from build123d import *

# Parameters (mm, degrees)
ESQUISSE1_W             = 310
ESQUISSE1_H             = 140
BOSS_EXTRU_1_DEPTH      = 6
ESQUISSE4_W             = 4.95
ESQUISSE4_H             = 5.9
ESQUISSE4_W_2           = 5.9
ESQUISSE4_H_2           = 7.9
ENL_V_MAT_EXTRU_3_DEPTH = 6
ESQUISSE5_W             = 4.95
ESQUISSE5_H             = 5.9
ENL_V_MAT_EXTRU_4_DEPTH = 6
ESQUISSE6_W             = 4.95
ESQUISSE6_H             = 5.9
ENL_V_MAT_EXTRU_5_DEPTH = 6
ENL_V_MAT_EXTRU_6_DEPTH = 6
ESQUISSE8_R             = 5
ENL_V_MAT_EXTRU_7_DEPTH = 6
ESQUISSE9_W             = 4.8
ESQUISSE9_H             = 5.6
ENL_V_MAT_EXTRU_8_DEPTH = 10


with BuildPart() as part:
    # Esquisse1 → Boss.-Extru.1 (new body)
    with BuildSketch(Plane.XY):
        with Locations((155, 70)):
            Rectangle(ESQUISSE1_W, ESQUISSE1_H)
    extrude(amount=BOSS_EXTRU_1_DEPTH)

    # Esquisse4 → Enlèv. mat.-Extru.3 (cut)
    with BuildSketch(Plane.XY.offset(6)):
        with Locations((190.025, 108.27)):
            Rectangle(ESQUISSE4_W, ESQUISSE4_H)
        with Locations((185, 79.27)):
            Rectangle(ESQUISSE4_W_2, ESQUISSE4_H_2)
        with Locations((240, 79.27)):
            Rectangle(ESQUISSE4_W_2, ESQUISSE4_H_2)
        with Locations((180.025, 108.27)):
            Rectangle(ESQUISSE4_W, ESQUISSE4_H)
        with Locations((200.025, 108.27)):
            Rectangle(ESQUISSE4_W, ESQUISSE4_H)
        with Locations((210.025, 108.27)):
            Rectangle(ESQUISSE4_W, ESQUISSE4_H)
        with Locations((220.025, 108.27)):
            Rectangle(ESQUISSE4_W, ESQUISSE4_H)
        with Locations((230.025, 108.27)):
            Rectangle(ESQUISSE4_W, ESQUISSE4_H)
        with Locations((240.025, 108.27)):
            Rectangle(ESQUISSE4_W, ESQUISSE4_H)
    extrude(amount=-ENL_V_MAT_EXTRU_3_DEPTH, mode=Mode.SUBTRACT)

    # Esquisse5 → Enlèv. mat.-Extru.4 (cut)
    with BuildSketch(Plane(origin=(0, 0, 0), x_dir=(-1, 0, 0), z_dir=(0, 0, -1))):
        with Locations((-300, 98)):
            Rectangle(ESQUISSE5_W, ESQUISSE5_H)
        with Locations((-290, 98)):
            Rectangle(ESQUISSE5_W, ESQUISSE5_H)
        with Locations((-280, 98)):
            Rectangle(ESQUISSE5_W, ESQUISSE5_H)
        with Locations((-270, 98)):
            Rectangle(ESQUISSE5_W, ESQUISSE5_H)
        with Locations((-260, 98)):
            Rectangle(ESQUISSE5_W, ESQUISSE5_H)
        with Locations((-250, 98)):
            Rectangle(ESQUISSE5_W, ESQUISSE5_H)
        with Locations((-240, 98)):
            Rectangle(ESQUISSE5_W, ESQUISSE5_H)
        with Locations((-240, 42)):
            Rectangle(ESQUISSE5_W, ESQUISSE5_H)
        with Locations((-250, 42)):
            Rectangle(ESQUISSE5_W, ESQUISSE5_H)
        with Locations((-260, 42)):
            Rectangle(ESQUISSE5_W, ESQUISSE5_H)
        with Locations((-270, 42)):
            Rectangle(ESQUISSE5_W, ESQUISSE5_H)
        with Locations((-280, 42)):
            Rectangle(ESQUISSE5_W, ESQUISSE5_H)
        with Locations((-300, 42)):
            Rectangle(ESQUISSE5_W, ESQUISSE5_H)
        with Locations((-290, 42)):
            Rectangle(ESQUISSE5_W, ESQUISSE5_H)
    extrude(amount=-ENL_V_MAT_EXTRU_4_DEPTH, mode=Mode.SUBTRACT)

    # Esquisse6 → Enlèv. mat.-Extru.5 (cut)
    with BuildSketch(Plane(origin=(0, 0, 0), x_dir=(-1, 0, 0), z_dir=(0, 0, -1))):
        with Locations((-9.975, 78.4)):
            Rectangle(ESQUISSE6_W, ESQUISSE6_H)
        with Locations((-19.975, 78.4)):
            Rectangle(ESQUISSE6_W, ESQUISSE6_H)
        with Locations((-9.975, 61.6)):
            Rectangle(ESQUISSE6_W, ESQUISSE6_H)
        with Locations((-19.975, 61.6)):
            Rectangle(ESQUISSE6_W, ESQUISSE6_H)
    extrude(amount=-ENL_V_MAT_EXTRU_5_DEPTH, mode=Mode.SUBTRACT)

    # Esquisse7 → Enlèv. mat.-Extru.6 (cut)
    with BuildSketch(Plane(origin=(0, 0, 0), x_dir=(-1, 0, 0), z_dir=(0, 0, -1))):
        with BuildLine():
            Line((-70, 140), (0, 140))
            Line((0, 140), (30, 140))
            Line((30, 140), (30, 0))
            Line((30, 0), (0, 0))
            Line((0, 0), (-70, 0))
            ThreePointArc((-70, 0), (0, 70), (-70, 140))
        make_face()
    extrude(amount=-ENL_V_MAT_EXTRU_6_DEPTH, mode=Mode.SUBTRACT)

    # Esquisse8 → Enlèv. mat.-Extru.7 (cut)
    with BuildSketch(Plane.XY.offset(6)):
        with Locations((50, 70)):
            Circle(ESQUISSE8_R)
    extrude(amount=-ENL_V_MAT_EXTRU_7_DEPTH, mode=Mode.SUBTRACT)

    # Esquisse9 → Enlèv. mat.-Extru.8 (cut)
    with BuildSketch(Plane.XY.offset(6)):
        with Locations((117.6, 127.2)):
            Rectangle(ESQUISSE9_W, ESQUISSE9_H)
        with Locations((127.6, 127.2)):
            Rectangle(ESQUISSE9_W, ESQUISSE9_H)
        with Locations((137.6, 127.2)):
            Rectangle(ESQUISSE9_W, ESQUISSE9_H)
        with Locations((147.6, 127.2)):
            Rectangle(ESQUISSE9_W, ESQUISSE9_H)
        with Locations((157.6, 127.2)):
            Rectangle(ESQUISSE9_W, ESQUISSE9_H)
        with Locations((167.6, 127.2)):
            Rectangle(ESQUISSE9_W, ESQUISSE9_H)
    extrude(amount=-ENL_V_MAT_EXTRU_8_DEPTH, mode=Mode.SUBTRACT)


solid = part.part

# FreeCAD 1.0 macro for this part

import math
import FreeCAD as App
import Part
import Sketcher
Q = App.Units.Quantity


def add_polygon(sketch, points):
    """Adds a closed chain of lines whose ends are joined by coincident constraints."""
    first, n = sketch.GeometryCount, len(points)
    for a, b in zip(points, points[1:] + points[:1]):
        sketch.addGeometry(Part.LineSegment(App.Vector(*a, 0), App.Vector(*b, 0)), False)
    for i in range(n):
        sketch.addConstraint(Sketcher.Constraint("Coincident", first + i, 2, first + (i + 1) % n, 1))

doc = App.newDocument("Part")
body = doc.addObject("PartDesign::Body", "Body")

sketch1 = body.newObject("Sketcher::SketchObject", "Sketch")
sketch1.AttachmentSupport = (doc.getObject("XY_Plane"), [""])
sketch1.MapMode = "FlatFace"
add_polygon(sketch1, [(0, 140), (0, 0), (310, 0), (310, 140)])
sketch1.addConstraint(Sketcher.Constraint("Vertical", 0))
sketch1.addConstraint(Sketcher.Constraint("Horizontal", 1))
sketch1.addConstraint(Sketcher.Constraint("Vertical", 2))
sketch1.addConstraint(Sketcher.Constraint("Horizontal", 3))
sketch1.addConstraint(Sketcher.Constraint("Coincident", 0, 2, -1, 1))
sketch1.addConstraint(Sketcher.Constraint("DistanceX", 1, 1, 1, 2, Q("310 mm")))
sketch1.addConstraint(Sketcher.Constraint("DistanceY", 0, 2, 0, 1, Q("140 mm")))
pad1 = body.newObject("PartDesign::Pad", "Pad")
pad1.Profile = sketch1
pad1.Length = 6

sketch2 = body.newObject("Sketcher::SketchObject", "Sketch001")
sketch2.AttachmentSupport = (doc.getObject("XY_Plane"), [""])
sketch2.MapMode = "FlatFace"
sketch2.AttachmentOffset = App.Placement(App.Vector(0, 0, 6), App.Rotation())
add_polygon(sketch2, [(187.6, 111.2), (187.6, 105.3), (192.5, 105.3), (192.5, 111.2)])
add_polygon(sketch2, [(182.1, 83.2), (182.1, 75.3), (187.9, 75.3), (187.9, 83.2)])
add_polygon(sketch2, [(237.1, 83.2), (237.1, 75.3), (242.9, 75.3), (242.9, 83.2)])
add_polygon(sketch2, [(177.6, 111.2), (177.6, 105.3), (182.5, 105.3), (182.5, 111.2)])
add_polygon(sketch2, [(197.6, 111.2), (197.6, 105.3), (202.5, 105.3), (202.5, 111.2)])
add_polygon(sketch2, [(207.6, 111.2), (207.6, 105.3), (212.5, 105.3), (212.5, 111.2)])
add_polygon(sketch2, [(217.6, 111.2), (217.6, 105.3), (222.5, 105.3), (222.5, 111.2)])
add_polygon(sketch2, [(227.6, 111.2), (227.6, 105.3), (232.5, 105.3), (232.5, 111.2)])
add_polygon(sketch2, [(237.6, 111.2), (237.6, 105.3), (242.5, 105.3), (242.5, 111.2)])
sketch2.addConstraint(Sketcher.Constraint("Vertical", 0))
sketch2.addConstraint(Sketcher.Constraint("Horizontal", 1))
sketch2.addConstraint(Sketcher.Constraint("Vertical", 2))
sketch2.addConstraint(Sketcher.Constraint("Horizontal", 3))
sketch2.addConstraint(Sketcher.Constraint("Vertical", 4))
sketch2.addConstraint(Sketcher.Constraint("Horizontal", 5))
sketch2.addConstraint(Sketcher.Constraint("Vertical", 6))
sketch2.addConstraint(Sketcher.Constraint("Horizontal", 7))
sketch2.addConstraint(Sketcher.Constraint("Vertical", 8))
sketch2.addConstraint(Sketcher.Constraint("Horizontal", 9))
sketch2.addConstraint(Sketcher.Constraint("Vertical", 10))
sketch2.addConstraint(Sketcher.Constraint("Horizontal", 11))
sketch2.addConstraint(Sketcher.Constraint("Vertical", 12))
sketch2.addConstraint(Sketcher.Constraint("Horizontal", 13))
sketch2.addConstraint(Sketcher.Constraint("Vertical", 14))
sketch2.addConstraint(Sketcher.Constraint("Horizontal", 15))
sketch2.addConstraint(Sketcher.Constraint("Vertical", 16))
sketch2.addConstraint(Sketcher.Constraint("Horizontal", 17))
sketch2.addConstraint(Sketcher.Constraint("Vertical", 18))
sketch2.addConstraint(Sketcher.Constraint("Horizontal", 19))
sketch2.addConstraint(Sketcher.Constraint("Vertical", 20))
sketch2.addConstraint(Sketcher.Constraint("Horizontal", 21))
sketch2.addConstraint(Sketcher.Constraint("Vertical", 22))
sketch2.addConstraint(Sketcher.Constraint("Horizontal", 23))
sketch2.addConstraint(Sketcher.Constraint("Vertical", 24))
sketch2.addConstraint(Sketcher.Constraint("Horizontal", 25))
sketch2.addConstraint(Sketcher.Constraint("Vertical", 26))
sketch2.addConstraint(Sketcher.Constraint("Horizontal", 27))
sketch2.addConstraint(Sketcher.Constraint("Vertical", 28))
sketch2.addConstraint(Sketcher.Constraint("Horizontal", 29))
sketch2.addConstraint(Sketcher.Constraint("Vertical", 30))
sketch2.addConstraint(Sketcher.Constraint("Horizontal", 31))
sketch2.addConstraint(Sketcher.Constraint("Vertical", 32))
sketch2.addConstraint(Sketcher.Constraint("Horizontal", 33))
sketch2.addConstraint(Sketcher.Constraint("Vertical", 34))
sketch2.addConstraint(Sketcher.Constraint("Horizontal", 35))
sketch2.addConstraint(Sketcher.Constraint("Horizontal", 5, 2, 8, 2))
sketch2.addConstraint(Sketcher.Constraint("Horizontal", 7, 2, 10, 2))
sketch2.addConstraint(Sketcher.Constraint("Horizontal", 1, 2, 12, 2))
sketch2.addConstraint(Sketcher.Constraint("Horizontal", 3, 2, 14, 2))
sketch2.addConstraint(Sketcher.Constraint("Horizontal", 13, 2, 16, 2))
sketch2.addConstraint(Sketcher.Constraint("Horizontal", 15, 2, 18, 2))
sketch2.addConstraint(Sketcher.Constraint("Horizontal", 17, 2, 20, 2))
sketch2.addConstraint(Sketcher.Constraint("Horizontal", 19, 2, 22, 2))
sketch2.addConstraint(Sketcher.Constraint("Horizontal", 21, 2, 24, 2))
sketch2.addConstraint(Sketcher.Constraint("Horizontal", 23, 2, 26, 2))
sketch2.addConstraint(Sketcher.Constraint("Horizontal", 25, 2, 28, 2))
sketch2.addConstraint(Sketcher.Constraint("Horizontal", 27, 2, 30, 2))
sketch2.addConstraint(Sketcher.Constraint("Horizontal", 29, 2, 32, 2))
sketch2.addConstraint(Sketcher.Constraint("Horizontal", 31, 2, 34, 2))
sketch2.addConstraint(Sketcher.Constraint("Equal", 7, 9))
sketch2.addConstraint(Sketcher.Constraint("Equal", 3, 13))
sketch2.addConstraint(Sketcher.Constraint("Equal", 15, 17))
sketch2.addConstraint(Sketcher.Constraint("Equal", 19, 21))
sketch2.addConstraint(Sketcher.Constraint("Equal", 23, 25))
sketch2.addConstraint(Sketcher.Constraint("Equal", 27, 29))
sketch2.addConstraint(Sketcher.Constraint("Equal", 31, 33))
sketch2.addConstraint(Sketcher.Constraint("Equal", 11, 0))
sketch2.addConstraint(Sketcher.Constraint("DistanceX", 5, 1, 5, 2, Q("5.9 mm")))
sketch2.addConstraint(Sketcher.Constraint("DistanceY", 4, 2, 4, 1, Q("7.9 mm")))
sketch2.addConstraint(Sketcher.Constraint("DistanceY", 4, 2, 0, 2, Q("30 mm")))
sketch2.addConstraint(Sketcher.Constraint("DistanceX", 4, 2, 8, 2, Q("55 mm")))
sketch2.addConstraint(Sketcher.Constraint("DistanceX", 12, 2, 0, 2, Q("10 mm")))
sketch2.addConstraint(Sketcher.Constraint("DistanceX", 0, 2, 16, 2, Q("10 mm")))
sketch2.addConstraint(Sketcher.Constraint("DistanceX", 16, 2, 20, 2, Q("10 mm")))
sketch2.addConstraint(Sketcher.Constraint("DistanceX", 20, 2, 24, 2, Q("10 mm")))
sketch2.addConstraint(Sketcher.Constraint("DistanceX", 24, 2, 28, 2, Q("10 mm")))
sketch2.addConstraint(Sketcher.Constraint("DistanceX", 28, 2, 32, 2, Q("10 mm")))
sketch2.addConstraint(Sketcher.Constraint("DistanceX", 1, 1, 1, 2, Q("4.95 mm")))
sketch2.addConstraint(Sketcher.Constraint("DistanceX", -1, 1, 1, 2, Q("192.5 mm")))
sketch2.addConstraint(Sketcher.Constraint("DistanceX", 4, 2, 0, 2, Q("5.5 mm")))
sketch2.addConstraint(Sketcher.Constraint("DistanceY", -1, 1, 0, 2, Q("105.32 mm")))
pocket1 = body.newObject("PartDesign::Pocket", "Pocket")
pocket1.Profile = sketch2
pocket1.Length = 6

sketch3 = body.newObject("Sketcher::SketchObject", "Sketch002")
sketch3.AttachmentSupport = (doc.getObject("XY_Plane"), [""])
sketch3.MapMode = "FlatFace"
add_polygon(sketch3, [(302.5, 101), (302.5, 95), (297.5, 95), (297.5, 101)])
add_polygon(sketch3, [(292.5, 101), (292.5, 95), (287.5, 95), (287.5, 101)])
add_polygon(sketch3, [(282.5, 101), (282.5, 95), (277.5, 95), (277.5, 101)])
add_polygon(sketch3, [(272.5, 101), (272.5, 95), (267.5, 95), (267.5, 101)])
add_polygon(sketch3, [(262.5, 101), (262.5, 95), (257.5, 95), (257.5, 101)])
add_polygon(sketch3, [(252.5, 101), (252.5, 95), (247.5, 95), (247.5, 101)])
add_polygon(sketch3, [(242.5, 101), (242.5, 95), (237.5, 95), (237.5, 101)])
add_polygon(sketch3, [(242.5, 45), (242.5, 39), (237.5, 39), (237.5, 45)])
add_polygon(sketch3, [(252.5, 45), (252.5, 39), (247.5, 39), (247.5, 45)])
add_polygon(sketch3, [(262.5, 45), (262.5, 39), (257.5, 39), (257.5, 45)])
add_polygon(sketch3, [(272.5, 45), (272.5, 39), (267.5, 39), (267.5, 45)])
add_polygon(sketch3, [(282.5, 45), (282.5, 39), (277.5, 39), (277.5, 45)])
add_polygon(sketch3, [(302.5, 45), (302.5, 39), (297.5, 39), (297.5, 45)])
add_polygon(sketch3, [(292.5, 45), (292.5, 39), (287.5, 39), (287.5, 45)])
sketch3.addConstraint(Sketcher.Constraint("Vertical", 0))
sketch3.addConstraint(Sketcher.Constraint("Horizontal", 1))
sketch3.addConstraint(Sketcher.Constraint("Vertical", 2))
sketch3.addConstraint(Sketcher.Constraint("Horizontal", 3))
sketch3.addConstraint(Sketcher.Constraint("Vertical", 4))
sketch3.addConstraint(Sketcher.Constraint("Horizontal", 5))
sketch3.addConstraint(Sketcher.Constraint("Vertical", 6))
sketch3.addConstraint(Sketcher.Constraint("Horizontal", 7))
sketch3.addConstraint(Sketcher.Constraint("Vertical", 8))
sketch3.addConstraint(Sketcher.Constraint("Horizontal", 9))
sketch3.addConstraint(Sketcher.Constraint("Vertical", 10))
sketch3.addConstraint(Sketcher.Constraint("Horizontal", 11))
sketch3.addConstraint(Sketcher.Constraint("Vertical", 12))
sketch3.addConstraint(Sketcher.Constraint("Horizontal", 13))
sketch3.addConstraint(Sketcher.Constraint("Vertical", 14))
sketch3.addConstraint(Sketcher.Constraint("Horizontal", 15))
sketch3.addConstraint(Sketcher.Constraint("Vertical", 16))
sketch3.addConstraint(Sketcher.Constraint("Horizontal", 17))
sketch3.addConstraint(Sketcher.Constraint("Vertical", 18))
sketch3.addConstraint(Sketcher.Constraint("Horizontal", 19))
sketch3.addConstraint(Sketcher.Constraint("Vertical", 20))
sketch3.addConstraint(Sketcher.Constraint("Horizontal", 21))
sketch3.addConstraint(Sketcher.Constraint("Vertical", 22))
sketch3.addConstraint(Sketcher.Constraint("Horizontal", 23))
sketch3.addConstraint(Sketcher.Constraint("Vertical", 24))
sketch3.addConstraint(Sketcher.Constraint("Horizontal", 25))
sketch3.addConstraint(Sketcher.Constraint("Vertical", 26))
sketch3.addConstraint(Sketcher.Constraint("Horizontal", 27))
sketch3.addConstraint(Sketcher.Constraint("Vertical", 28))
sketch3.addConstraint(Sketcher.Constraint("Horizontal", 29))
sketch3.addConstraint(Sketcher.Constraint("Vertical", 30))
sketch3.addConstraint(Sketcher.Constraint("Horizontal", 31))
sketch3.addConstraint(Sketcher.Constraint("Vertical", 32))
sketch3.addConstraint(Sketcher.Constraint("Horizontal", 33))
sketch3.addConstraint(Sketcher.Constraint("Vertical", 34))
sketch3.addConstraint(Sketcher.Constraint("Horizontal", 35))
sketch3.addConstraint(Sketcher.Constraint("Vertical", 36))
sketch3.addConstraint(Sketcher.Constraint("Horizontal", 37))
sketch3.addConstraint(Sketcher.Constraint("Vertical", 38))
sketch3.addConstraint(Sketcher.Constraint("Horizontal", 39))
sketch3.addConstraint(Sketcher.Constraint("Vertical", 40))
sketch3.addConstraint(Sketcher.Constraint("Horizontal", 41))
sketch3.addConstraint(Sketcher.Constraint("Vertical", 42))
sketch3.addConstraint(Sketcher.Constraint("Horizontal", 43))
sketch3.addConstraint(Sketcher.Constraint("Vertical", 44))
sketch3.addConstraint(Sketcher.Constraint("Horizontal", 45))
sketch3.addConstraint(Sketcher.Constraint("Vertical", 46))
sketch3.addConstraint(Sketcher.Constraint("Horizontal", 47))
sketch3.addConstraint(Sketcher.Constraint("Vertical", 48))
sketch3.addConstraint(Sketcher.Constraint("Horizontal", 49))
sketch3.addConstraint(Sketcher.Constraint("Vertical", 50))
sketch3.addConstraint(Sketcher.Constraint("Horizontal", 51))
sketch3.addConstraint(Sketcher.Constraint("Vertical", 52))
sketch3.addConstraint(Sketcher.Constraint("Horizontal", 53))
sketch3.addConstraint(Sketcher.Constraint("Vertical", 54))
sketch3.addConstraint(Sketcher.Constraint("Horizontal", 55))
sketch3.addConstraint(Sketcher.Constraint("Horizontal", 1, 2, 4, 2))
sketch3.addConstraint(Sketcher.Constraint("Horizontal", 3, 2, 6, 2))
sketch3.addConstraint(Sketcher.Constraint("Horizontal", 5, 2, 8, 2))
sketch3.addConstraint(Sketcher.Constraint("Horizontal", 7, 2, 10, 2))
sketch3.addConstraint(Sketcher.Constraint("Horizontal", 9, 2, 12, 2))
sketch3.addConstraint(Sketcher.Constraint("Horizontal", 11, 2, 14, 2))
sketch3.addConstraint(Sketcher.Constraint("Horizontal", 13, 2, 16, 2))
sketch3.addConstraint(Sketcher.Constraint("Horizontal", 15, 2, 18, 2))
sketch3.addConstraint(Sketcher.Constraint("Horizontal", 17, 2, 20, 2))
sketch3.addConstraint(Sketcher.Constraint("Horizontal", 19, 2, 22, 2))
sketch3.addConstraint(Sketcher.Constraint("Horizontal", 21, 2, 24, 2))
sketch3.addConstraint(Sketcher.Constraint("Horizontal", 23, 2, 26, 2))
sketch3.addConstraint(Sketcher.Constraint("Horizontal", 29, 2, 32, 2))
sketch3.addConstraint(Sketcher.Constraint("Horizontal", 31, 2, 34, 2))
sketch3.addConstraint(Sketcher.Constraint("Horizontal", 33, 2, 36, 2))
sketch3.addConstraint(Sketcher.Constraint("Horizontal", 35, 2, 38, 2))
sketch3.addConstraint(Sketcher.Constraint("Horizontal", 37, 2, 40, 2))
sketch3.addConstraint(Sketcher.Constraint("Horizontal", 39, 2, 42, 2))
sketch3.addConstraint(Sketcher.Constraint("Horizontal", 41, 2, 44, 2))
sketch3.addConstraint(Sketcher.Constraint("Horizontal", 43, 2, 46, 2))
sketch3.addConstraint(Sketcher.Constraint("Horizontal", 45, 2, 48, 2))
sketch3.addConstraint(Sketcher.Constraint("Horizontal", 47, 2, 50, 2))
sketch3.addConstraint(Sketcher.Constraint("Horizontal", 49, 2, 52, 2))
sketch3.addConstraint(Sketcher.Constraint("Horizontal", 51, 2, 54, 2))
sketch3.addConstraint(Sketcher.Constraint("Vertical", 27, 2, 28, 2))
sketch3.addConstraint(Sketcher.Constraint("Vertical", 26, 2, 29, 2))
sketch3.addConstraint(Sketcher.Constraint("Vertical", 23, 2, 32, 2))
sketch3.addConstraint(Sketcher.Constraint("Vertical", 22, 2, 33, 2))
sketch3.addConstraint(Sketcher.Constraint("Vertical", 19, 2, 36, 2))
sketch3.addConstraint(Sketcher.Constraint("Vertical", 18, 2, 37, 2))
sketch3.addConstraint(Sketcher.Constraint("Vertical", 15, 2, 40, 2))
sketch3.addConstraint(Sketcher.Constraint("Vertical", 14, 2, 41, 2))
sketch3.addConstraint(Sketcher.Constraint("Vertical", 11, 2, 44, 2))
sketch3.addConstraint(Sketcher.Constraint("Vertical", 10, 2, 45, 2))
sketch3.addConstraint(Sketcher.Constraint("Vertical", 3, 2, 48, 2))
sketch3.addConstraint(Sketcher.Constraint("Vertical", 2, 2, 49, 2))
sketch3.addConstraint(Sketcher.Constraint("Vertical", 7, 2, 52, 2))
sketch3.addConstraint(Sketcher.Constraint("Vertical", 6, 2, 53, 2))
sketch3.addConstraint(Sketcher.Constraint("Equal", 3, 5))
sketch3.addConstraint(Sketcher.Constraint("Equal", 7, 9))
sketch3.addConstraint(Sketcher.Constraint("Equal", 11, 13))
sketch3.addConstraint(Sketcher.Constraint("Equal", 15, 17))
sketch3.addConstraint(Sketcher.Constraint("Equal", 19, 21))
sketch3.addConstraint(Sketcher.Constraint("Equal", 23, 25))
sketch3.addConstraint(Sketcher.Constraint("Equal", 26, 28))
sketch3.addConstraint(Sketcher.Constraint("DistanceY", 0, 2, 0, 1, Q("5.9 mm")))
sketch3.addConstraint(Sketcher.Constraint("DistanceX", 4, 2, 0, 2, Q("10 mm")))
sketch3.addConstraint(Sketcher.Constraint("DistanceX", 8, 2, 4, 2, Q("10 mm")))
sketch3.addConstraint(Sketcher.Constraint("DistanceX", 12, 2, 8, 2, Q("10 mm")))
sketch3.addConstraint(Sketcher.Constraint("DistanceX", 16, 2, 12, 2, Q("10 mm")))
sketch3.addConstraint(Sketcher.Constraint("DistanceX", 20, 2, 16, 2, Q("10 mm")))
sketch3.addConstraint(Sketcher.Constraint("DistanceX", 24, 2, 20, 2, Q("10 mm")))
sketch3.addConstraint(Sketcher.Constraint("DistanceY", 28, 2, 24, 2, Q("56 mm")))
sketch3.addConstraint(Sketcher.Constraint("DistanceX", 1, 2, 1, 1, Q("4.95 mm")))
sketch3.addConstraint(Sketcher.Constraint("DistanceY", -1, 1, 0, 2, Q("95.05 mm")))
sketch3.addConstraint(Sketcher.Constraint("DistanceX", -1, 1, 0, 2, Q("302.475 mm")))
pocket2 = body.newObject("PartDesign::Pocket", "Pocket001")
pocket2.Profile = sketch3
pocket2.Length = 6
pocket2.Reversed = True

sketch4 = body.newObject("Sketcher::SketchObject", "Sketch003")
sketch4.AttachmentSupport = (doc.getObject("XY_Plane"), [""])
sketch4.MapMode = "FlatFace"
add_polygon(sketch4, [(12.4, 81.3), (12.4, 75.5), (7.5, 75.5), (7.5, 81.3)])
add_polygon(sketch4, [(22.4, 81.3), (22.4, 75.5), (17.5, 75.5), (17.5, 81.3)])
add_polygon(sketch4, [(12.4, 64.5), (12.4, 58.6), (7.5, 58.6), (7.5, 64.5)])
add_polygon(sketch4, [(22.4, 64.5), (22.4, 58.6), (17.5, 58.6), (17.5, 64.5)])
sketch4.addConstraint(Sketcher.Constraint("Vertical", 0))
sketch4.addConstraint(Sketcher.Constraint("Horizontal", 1))
sketch4.addConstraint(Sketcher.Constraint("Vertical", 2))
sketch4.addConstraint(Sketcher.Constraint("Horizontal", 3))
sketch4.addConstraint(Sketcher.Constraint("Vertical", 4))
sketch4.addConstraint(Sketcher.Constraint("Horizontal", 5))
sketch4.addConstraint(Sketcher.Constraint("Vertical", 6))
sketch4.addConstraint(Sketcher.Constraint("Horizontal", 7))
sketch4.addConstraint(Sketcher.Constraint("Vertical", 8))
sketch4.addConstraint(Sketcher.Constraint("Horizontal", 9))
sketch4.addConstraint(Sketcher.Constraint("Vertical", 10))
sketch4.addConstraint(Sketcher.Constraint("Horizontal", 11))
sketch4.addConstraint(Sketcher.Constraint("Vertical", 12))
sketch4.addConstraint(Sketcher.Constraint("Horizontal", 13))
sketch4.addConstraint(Sketcher.Constraint("Vertical", 14))
sketch4.addConstraint(Sketcher.Constraint("Horizontal", 15))
sketch4.addConstraint(Sketcher.Constraint("Horizontal", 1, 2, 4, 2))
sketch4.addConstraint(Sketcher.Constraint("Horizontal", 3, 2, 6, 2))
sketch4.addConstraint(Sketcher.Constraint("Horizontal", 9, 2, 12, 2))
sketch4.addConstraint(Sketcher.Constraint("Horizontal", 11, 2, 14, 2))
sketch4.addConstraint(Sketcher.Constraint("Vertical", 3, 2, 8, 2))
sketch4.addConstraint(Sketcher.Constraint("Vertical", 2, 2, 9, 2))
sketch4.addConstraint(Sketcher.Constraint("Vertical", 7, 2, 12, 2))
sketch4.addConstraint(Sketcher.Constraint("Vertical", 6, 2, 13, 2))
sketch4.addConstraint(Sketcher.Constraint("Equal", 3, 5))
sketch4.addConstraint(Sketcher.Constraint("Equal", 6, 8))
sketch4.addConstraint(Sketcher.Constraint("DistanceY", 0, 2, 0, 1, Q("5.9 mm")))
sketch4.addConstraint(Sketcher.Constraint("DistanceX", 0, 2, 4, 2, Q("10 mm")))
sketch4.addConstraint(Sketcher.Constraint("DistanceX", 1, 2, 1, 1, Q("4.95 mm")))
sketch4.addConstraint(Sketcher.Constraint("DistanceX", -1, 1, 1, 2, Q("7.5 mm")))
sketch4.addConstraint(Sketcher.Constraint("DistanceY", 8, 2, 0, 2, Q("16.8 mm")))
sketch4.addConstraint(Sketcher.Constraint("DistanceY", -1, 1, 0, 2, Q("75.45 mm")))
pocket3 = body.newObject("PartDesign::Pocket", "Pocket002")
pocket3.Profile = sketch4
pocket3.Length = 6
pocket3.Reversed = True

sketch5 = body.newObject("Sketcher::SketchObject", "Sketch004")
sketch5.AttachmentSupport = (doc.getObject("XY_Plane"), [""])
sketch5.MapMode = "FlatFace"
sketch5.addGeometry(Part.LineSegment(App.Vector(-30, 140, 0), App.Vector(70, 140, 0)), False)
sketch5.addGeometry(Part.ArcOfCircle(Part.Circle(App.Vector(70, 70, 0), App.Vector(0, 0, 1), 70), math.radians(90), math.radians(270)), False)
sketch5.addGeometry(Part.LineSegment(App.Vector(70, 0, 0), App.Vector(-30, 0, 0)), False)
sketch5.addGeometry(Part.LineSegment(App.Vector(-30, 0, 0), App.Vector(-30, 140, 0)), False)
sketch5.addConstraint(Sketcher.Constraint("Tangent", 0, 2, 1, 1))
sketch5.addConstraint(Sketcher.Constraint("Tangent", 1, 2, 2, 1))
sketch5.addConstraint(Sketcher.Constraint("Coincident", 2, 2, 3, 1))
sketch5.addConstraint(Sketcher.Constraint("Coincident", 3, 2, 0, 1))
sketch5.addConstraint(Sketcher.Constraint("Horizontal", 0))
sketch5.addConstraint(Sketcher.Constraint("Horizontal", 2))
sketch5.addConstraint(Sketcher.Constraint("Vertical", 3))
sketch5.addConstraint(Sketcher.Constraint("PointOnObject", 1, 2, -1))
sketch5.addConstraint(Sketcher.Constraint("Radius", 1, Q("70 mm")))
sketch5.addConstraint(Sketcher.Constraint("DistanceX", 0, 1, 0, 2, Q("100 mm")))
sketch5.addConstraint(Sketcher.Constraint("DistanceX", -1, 1, 1, 3, Q("70 mm")))
pocket4 = body.newObject("PartDesign::Pocket", "Pocket003")
pocket4.Profile = sketch5
pocket4.Length = 6
pocket4.Reversed = True

sketch6 = body.newObject("Sketcher::SketchObject", "Sketch005")
sketch6.AttachmentSupport = (doc.getObject("XY_Plane"), [""])
sketch6.MapMode = "FlatFace"
sketch6.AttachmentOffset = App.Placement(App.Vector(0, 0, 6), App.Rotation())
sketch6.addGeometry(Part.Circle(App.Vector(50, 70, 0), App.Vector(0, 0, 1), 5), False)
sketch6.addConstraint(Sketcher.Constraint("Diameter", 0, Q("10 mm")))
sketch6.addConstraint(Sketcher.Constraint("DistanceX", -1, 1, 0, 3, Q("50 mm")))
sketch6.addConstraint(Sketcher.Constraint("DistanceY", -1, 1, 0, 3, Q("70 mm")))
pocket5 = body.newObject("PartDesign::Pocket", "Pocket004")
pocket5.Profile = sketch6
pocket5.Length = 6

sketch7 = body.newObject("Sketcher::SketchObject", "Sketch006")
sketch7.AttachmentSupport = (doc.getObject("XY_Plane"), [""])
sketch7.MapMode = "FlatFace"
sketch7.AttachmentOffset = App.Placement(App.Vector(0, 0, 6), App.Rotation())
add_polygon(sketch7, [(115.2, 130), (115.2, 124.4), (120, 124.4), (120, 130)])
add_polygon(sketch7, [(125.2, 130), (125.2, 124.4), (130, 124.4), (130, 130)])
add_polygon(sketch7, [(135.2, 130), (135.2, 124.4), (140, 124.4), (140, 130)])
add_polygon(sketch7, [(145.2, 130), (145.2, 124.4), (150, 124.4), (150, 130)])
add_polygon(sketch7, [(155.2, 130), (155.2, 124.4), (160, 124.4), (160, 130)])
add_polygon(sketch7, [(165.2, 130), (165.2, 124.4), (170, 124.4), (170, 130)])
sketch7.addConstraint(Sketcher.Constraint("Vertical", 0))
sketch7.addConstraint(Sketcher.Constraint("Horizontal", 1))
sketch7.addConstraint(Sketcher.Constraint("Vertical", 2))
sketch7.addConstraint(Sketcher.Constraint("Horizontal", 3))
sketch7.addConstraint(Sketcher.Constraint("Vertical", 4))
sketch7.addConstraint(Sketcher.Constraint("Horizontal", 5))
sketch7.addConstraint(Sketcher.Constraint("Vertical", 6))
sketch7.addConstraint(Sketcher.Constraint("Horizontal", 7))
sketch7.addConstraint(Sketcher.Constraint("Vertical", 8))
sketch7.addConstraint(Sketcher.Constraint("Horizontal", 9))
sketch7.addConstraint(Sketcher.Constraint("Vertical", 10))
sketch7.addConstraint(Sketcher.Constraint("Horizontal", 11))
sketch7.addConstraint(Sketcher.Constraint("Vertical", 12))
sketch7.addConstraint(Sketcher.Constraint("Horizontal", 13))
sketch7.addConstraint(Sketcher.Constraint("Vertical", 14))
sketch7.addConstraint(Sketcher.Constraint("Horizontal", 15))
sketch7.addConstraint(Sketcher.Constraint("Vertical", 16))
sketch7.addConstraint(Sketcher.Constraint("Horizontal", 17))
sketch7.addConstraint(Sketcher.Constraint("Vertical", 18))
sketch7.addConstraint(Sketcher.Constraint("Horizontal", 19))
sketch7.addConstraint(Sketcher.Constraint("Vertical", 20))
sketch7.addConstraint(Sketcher.Constraint("Horizontal", 21))
sketch7.addConstraint(Sketcher.Constraint("Vertical", 22))
sketch7.addConstraint(Sketcher.Constraint("Horizontal", 23))
sketch7.addConstraint(Sketcher.Constraint("Horizontal", 1, 2, 4, 2))
sketch7.addConstraint(Sketcher.Constraint("Horizontal", 3, 2, 6, 2))
sketch7.addConstraint(Sketcher.Constraint("Horizontal", 5, 2, 8, 2))
sketch7.addConstraint(Sketcher.Constraint("Horizontal", 7, 2, 10, 2))
sketch7.addConstraint(Sketcher.Constraint("Horizontal", 9, 2, 12, 2))
sketch7.addConstraint(Sketcher.Constraint("Horizontal", 11, 2, 14, 2))
sketch7.addConstraint(Sketcher.Constraint("Horizontal", 13, 2, 16, 2))
sketch7.addConstraint(Sketcher.Constraint("Horizontal", 15, 2, 18, 2))
sketch7.addConstraint(Sketcher.Constraint("Horizontal", 17, 2, 20, 2))
sketch7.addConstraint(Sketcher.Constraint("Horizontal", 19, 2, 22, 2))
sketch7.addConstraint(Sketcher.Constraint("Equal", 3, 5))
sketch7.addConstraint(Sketcher.Constraint("Equal", 7, 9))
sketch7.addConstraint(Sketcher.Constraint("Equal", 11, 13))
sketch7.addConstraint(Sketcher.Constraint("Equal", 15, 17))
sketch7.addConstraint(Sketcher.Constraint("Equal", 19, 21))
sketch7.addConstraint(Sketcher.Constraint("DistanceX", 1, 1, 1, 2, Q("4.8 mm")))
sketch7.addConstraint(Sketcher.Constraint("DistanceY", 0, 2, 0, 1, Q("5.6 mm")))
sketch7.addConstraint(Sketcher.Constraint("DistanceX", -1, 1, 1, 2, Q("120 mm")))
sketch7.addConstraint(Sketcher.Constraint("DistanceY", -1, 1, 2, 2, Q("130 mm")))
sketch7.addConstraint(Sketcher.Constraint("DistanceX", -1, 1, 5, 2, Q("130 mm")))
sketch7.addConstraint(Sketcher.Constraint("DistanceX", -1, 1, 9, 2, Q("140 mm")))
sketch7.addConstraint(Sketcher.Constraint("DistanceX", -1, 1, 13, 2, Q("150 mm")))
sketch7.addConstraint(Sketcher.Constraint("DistanceX", -1, 1, 17, 2, Q("160 mm")))
sketch7.addConstraint(Sketcher.Constraint("DistanceX", -1, 1, 21, 2, Q("170 mm")))
pocket6 = body.newObject("PartDesign::Pocket", "Pocket005")
pocket6.Profile = sketch7
pocket6.Length = 10

doc.recompute()
